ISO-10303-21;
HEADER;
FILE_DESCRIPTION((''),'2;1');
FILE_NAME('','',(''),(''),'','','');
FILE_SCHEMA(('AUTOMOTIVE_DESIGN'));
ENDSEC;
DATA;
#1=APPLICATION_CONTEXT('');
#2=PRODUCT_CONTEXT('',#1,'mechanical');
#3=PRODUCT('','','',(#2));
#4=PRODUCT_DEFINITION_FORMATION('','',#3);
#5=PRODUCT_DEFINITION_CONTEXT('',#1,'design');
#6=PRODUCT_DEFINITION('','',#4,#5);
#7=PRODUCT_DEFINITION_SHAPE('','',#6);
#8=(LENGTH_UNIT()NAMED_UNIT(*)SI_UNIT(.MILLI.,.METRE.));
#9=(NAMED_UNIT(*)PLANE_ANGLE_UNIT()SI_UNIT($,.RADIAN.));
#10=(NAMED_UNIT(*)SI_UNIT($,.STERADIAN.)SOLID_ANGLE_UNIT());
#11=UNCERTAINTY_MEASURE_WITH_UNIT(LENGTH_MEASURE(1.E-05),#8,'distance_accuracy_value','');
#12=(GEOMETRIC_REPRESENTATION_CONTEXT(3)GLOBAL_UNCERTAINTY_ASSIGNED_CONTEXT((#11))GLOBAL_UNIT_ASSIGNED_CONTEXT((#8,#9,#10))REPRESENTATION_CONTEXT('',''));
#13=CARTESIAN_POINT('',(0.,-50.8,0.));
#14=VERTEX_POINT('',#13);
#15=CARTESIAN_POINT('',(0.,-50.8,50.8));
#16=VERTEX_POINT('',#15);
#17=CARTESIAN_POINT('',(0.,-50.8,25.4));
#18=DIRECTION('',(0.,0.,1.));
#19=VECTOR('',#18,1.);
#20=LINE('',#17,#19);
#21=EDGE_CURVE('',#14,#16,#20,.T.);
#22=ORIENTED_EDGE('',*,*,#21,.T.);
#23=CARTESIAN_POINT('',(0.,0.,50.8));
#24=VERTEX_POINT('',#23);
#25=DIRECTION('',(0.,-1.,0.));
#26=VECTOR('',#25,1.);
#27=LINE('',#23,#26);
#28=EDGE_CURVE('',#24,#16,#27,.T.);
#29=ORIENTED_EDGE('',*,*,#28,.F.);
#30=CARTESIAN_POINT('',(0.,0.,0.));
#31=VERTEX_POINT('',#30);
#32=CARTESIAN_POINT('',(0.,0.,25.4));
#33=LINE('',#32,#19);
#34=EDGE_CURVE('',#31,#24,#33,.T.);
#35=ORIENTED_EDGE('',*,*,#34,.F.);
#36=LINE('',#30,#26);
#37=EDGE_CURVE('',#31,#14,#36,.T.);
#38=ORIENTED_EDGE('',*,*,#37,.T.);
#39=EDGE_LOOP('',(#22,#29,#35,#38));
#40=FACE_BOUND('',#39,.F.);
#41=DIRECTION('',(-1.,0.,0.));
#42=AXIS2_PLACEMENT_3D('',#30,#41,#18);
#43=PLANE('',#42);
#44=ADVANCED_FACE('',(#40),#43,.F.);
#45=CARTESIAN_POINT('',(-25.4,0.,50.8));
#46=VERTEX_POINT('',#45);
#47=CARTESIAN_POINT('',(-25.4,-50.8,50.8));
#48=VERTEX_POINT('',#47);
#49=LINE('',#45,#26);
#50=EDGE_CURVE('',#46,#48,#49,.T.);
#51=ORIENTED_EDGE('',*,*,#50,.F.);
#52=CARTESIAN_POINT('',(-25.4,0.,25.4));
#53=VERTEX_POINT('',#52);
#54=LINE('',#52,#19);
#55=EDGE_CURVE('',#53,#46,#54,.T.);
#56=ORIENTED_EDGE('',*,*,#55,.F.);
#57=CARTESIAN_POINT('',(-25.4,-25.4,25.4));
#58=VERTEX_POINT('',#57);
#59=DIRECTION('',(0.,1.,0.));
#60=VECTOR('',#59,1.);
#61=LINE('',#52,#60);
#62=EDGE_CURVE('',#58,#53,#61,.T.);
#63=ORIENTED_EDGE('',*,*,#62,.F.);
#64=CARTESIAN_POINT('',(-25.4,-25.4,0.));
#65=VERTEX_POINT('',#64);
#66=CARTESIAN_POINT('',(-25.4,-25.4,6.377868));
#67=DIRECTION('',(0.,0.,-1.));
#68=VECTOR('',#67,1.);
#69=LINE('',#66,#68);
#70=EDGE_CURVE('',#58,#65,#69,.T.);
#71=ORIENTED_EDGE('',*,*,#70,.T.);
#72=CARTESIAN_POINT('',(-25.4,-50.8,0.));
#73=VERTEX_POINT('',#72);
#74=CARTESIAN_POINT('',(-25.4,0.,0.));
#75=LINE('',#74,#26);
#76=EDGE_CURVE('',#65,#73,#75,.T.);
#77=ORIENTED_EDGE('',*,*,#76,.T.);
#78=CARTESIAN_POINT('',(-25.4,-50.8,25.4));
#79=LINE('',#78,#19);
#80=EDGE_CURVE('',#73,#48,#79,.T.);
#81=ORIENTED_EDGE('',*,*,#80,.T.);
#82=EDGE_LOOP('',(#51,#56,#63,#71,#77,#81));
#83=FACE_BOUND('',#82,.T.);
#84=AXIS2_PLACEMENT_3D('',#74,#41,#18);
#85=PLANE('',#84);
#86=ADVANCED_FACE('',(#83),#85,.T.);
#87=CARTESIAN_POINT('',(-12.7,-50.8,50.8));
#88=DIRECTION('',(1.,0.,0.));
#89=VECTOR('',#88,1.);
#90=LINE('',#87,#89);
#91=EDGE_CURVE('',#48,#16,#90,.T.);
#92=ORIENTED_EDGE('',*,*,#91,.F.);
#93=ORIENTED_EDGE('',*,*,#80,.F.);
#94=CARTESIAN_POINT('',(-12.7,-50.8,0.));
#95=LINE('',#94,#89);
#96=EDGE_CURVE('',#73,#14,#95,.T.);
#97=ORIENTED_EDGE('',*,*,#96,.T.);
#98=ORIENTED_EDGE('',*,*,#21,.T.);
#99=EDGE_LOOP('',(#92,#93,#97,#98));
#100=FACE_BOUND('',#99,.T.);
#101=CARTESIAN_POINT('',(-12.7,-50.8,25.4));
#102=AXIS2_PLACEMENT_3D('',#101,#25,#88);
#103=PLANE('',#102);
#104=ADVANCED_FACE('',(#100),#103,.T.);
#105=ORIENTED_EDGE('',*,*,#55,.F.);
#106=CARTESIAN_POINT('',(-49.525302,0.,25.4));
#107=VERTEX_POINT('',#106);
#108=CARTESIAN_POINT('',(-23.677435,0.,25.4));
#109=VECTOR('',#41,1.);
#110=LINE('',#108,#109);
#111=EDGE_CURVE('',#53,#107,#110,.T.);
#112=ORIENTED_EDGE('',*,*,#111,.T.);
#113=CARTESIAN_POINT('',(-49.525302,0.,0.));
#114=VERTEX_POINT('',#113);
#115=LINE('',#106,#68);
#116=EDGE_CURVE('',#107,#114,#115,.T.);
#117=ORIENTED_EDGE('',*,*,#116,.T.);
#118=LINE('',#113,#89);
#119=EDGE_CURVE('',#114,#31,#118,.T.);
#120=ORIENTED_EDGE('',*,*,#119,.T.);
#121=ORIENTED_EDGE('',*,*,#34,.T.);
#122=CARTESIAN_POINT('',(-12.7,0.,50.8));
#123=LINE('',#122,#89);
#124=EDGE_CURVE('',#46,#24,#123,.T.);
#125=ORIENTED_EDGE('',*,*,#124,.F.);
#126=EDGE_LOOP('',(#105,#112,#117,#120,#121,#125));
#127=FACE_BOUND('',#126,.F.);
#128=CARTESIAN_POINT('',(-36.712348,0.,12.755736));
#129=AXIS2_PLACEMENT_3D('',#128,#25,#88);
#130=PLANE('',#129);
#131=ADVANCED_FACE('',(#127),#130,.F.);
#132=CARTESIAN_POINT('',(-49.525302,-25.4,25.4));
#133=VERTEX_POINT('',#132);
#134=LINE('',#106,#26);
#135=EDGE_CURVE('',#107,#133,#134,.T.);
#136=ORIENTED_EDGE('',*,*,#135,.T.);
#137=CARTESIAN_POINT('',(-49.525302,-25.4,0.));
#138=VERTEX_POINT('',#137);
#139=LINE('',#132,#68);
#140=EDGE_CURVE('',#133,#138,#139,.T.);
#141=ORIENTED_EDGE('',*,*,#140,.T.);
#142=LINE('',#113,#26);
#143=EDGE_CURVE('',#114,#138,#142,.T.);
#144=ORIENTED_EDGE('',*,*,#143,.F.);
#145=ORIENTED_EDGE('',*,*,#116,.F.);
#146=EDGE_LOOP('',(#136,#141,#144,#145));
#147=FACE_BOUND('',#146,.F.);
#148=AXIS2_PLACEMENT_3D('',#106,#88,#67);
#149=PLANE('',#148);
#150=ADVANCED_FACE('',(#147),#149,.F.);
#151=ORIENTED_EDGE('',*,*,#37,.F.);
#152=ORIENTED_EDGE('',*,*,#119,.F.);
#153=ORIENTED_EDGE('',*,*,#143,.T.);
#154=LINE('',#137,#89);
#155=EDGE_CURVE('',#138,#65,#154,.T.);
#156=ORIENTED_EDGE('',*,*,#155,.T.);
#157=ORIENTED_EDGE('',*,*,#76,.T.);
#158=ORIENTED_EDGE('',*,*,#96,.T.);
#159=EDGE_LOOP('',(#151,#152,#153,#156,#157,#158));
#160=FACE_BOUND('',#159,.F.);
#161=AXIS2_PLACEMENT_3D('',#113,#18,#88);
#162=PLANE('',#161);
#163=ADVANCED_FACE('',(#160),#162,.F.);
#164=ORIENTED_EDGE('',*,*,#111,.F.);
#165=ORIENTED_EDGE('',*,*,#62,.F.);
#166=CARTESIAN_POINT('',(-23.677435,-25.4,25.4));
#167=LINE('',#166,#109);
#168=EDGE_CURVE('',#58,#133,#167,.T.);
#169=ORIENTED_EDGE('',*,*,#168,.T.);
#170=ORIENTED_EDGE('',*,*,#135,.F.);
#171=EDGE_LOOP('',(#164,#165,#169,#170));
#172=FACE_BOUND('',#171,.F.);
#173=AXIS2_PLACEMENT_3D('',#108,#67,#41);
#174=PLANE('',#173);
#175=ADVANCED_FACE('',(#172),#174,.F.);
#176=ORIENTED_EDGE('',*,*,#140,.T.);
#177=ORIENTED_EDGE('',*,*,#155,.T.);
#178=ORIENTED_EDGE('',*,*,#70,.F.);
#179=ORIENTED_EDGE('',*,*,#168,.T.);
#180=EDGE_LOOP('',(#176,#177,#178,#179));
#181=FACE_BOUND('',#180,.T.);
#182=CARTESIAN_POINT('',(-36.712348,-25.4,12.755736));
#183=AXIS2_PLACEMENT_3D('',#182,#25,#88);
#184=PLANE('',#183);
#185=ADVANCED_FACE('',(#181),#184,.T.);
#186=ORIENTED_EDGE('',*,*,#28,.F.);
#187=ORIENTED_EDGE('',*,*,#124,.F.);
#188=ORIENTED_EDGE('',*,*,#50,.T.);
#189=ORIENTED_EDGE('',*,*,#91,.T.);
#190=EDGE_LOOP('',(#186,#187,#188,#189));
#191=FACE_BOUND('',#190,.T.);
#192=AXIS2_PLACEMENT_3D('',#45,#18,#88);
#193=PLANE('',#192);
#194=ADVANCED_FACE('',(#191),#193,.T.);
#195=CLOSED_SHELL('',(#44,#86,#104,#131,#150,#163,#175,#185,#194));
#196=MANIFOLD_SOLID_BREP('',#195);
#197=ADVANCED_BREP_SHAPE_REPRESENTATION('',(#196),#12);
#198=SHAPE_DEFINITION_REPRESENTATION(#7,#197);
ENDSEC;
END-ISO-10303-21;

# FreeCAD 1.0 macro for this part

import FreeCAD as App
import Part
import Sketcher
from FreeCAD import Vector
Q = App.Units.Quantity

doc = App.newDocument("Part")
params = doc.addObject("Spreadsheet::Sheet", "Params")
for row, (alias, value) in enumerate([
    ("sketch1_width", "1 in"),
    ("pad1_length", "1 in"),
    ("sketch2_width", "1 in"),
    ("sketch2_height", "2 in"),
    ("pad2_length", "2 in"),
    ("sketch3_width", "1 in"),
    ("pad3_length", "1 in"),
    ("sketch4_width", "1 in"),
    ("sketch4_height", "2 in"),
    ("pad4_length", "2 in"),
], start=1):
    params.set(f"A{row}", alias)
    params.set(f"B{row}", "=" + value)
    params.setAlias(f"B{row}", alias)

body = doc.addObject("PartDesign::Body", "Body")

sketch1 = body.newObject("Sketcher::SketchObject", "Sketch")
sketch1.AttachmentSupport = (doc.getObject("YZ_Plane"), [""])
sketch1.MapMode = "FlatFace"
sketch1.addGeometry([
    Part.LineSegment(Vector(-25, 28, 0), Vector(-25, 3, 0)),
    Part.LineSegment(Vector(-25, 3, 0), Vector(0, 3, 0)),
    Part.LineSegment(Vector(0, 3, 0), Vector(0, 28, 0)),
    Part.LineSegment(Vector(0, 28, 0), Vector(-25, 28, 0)),
], False)
sketch1.addConstraint([
    Sketcher.Constraint("Coincident", 0, 2, 1, 1),
    Sketcher.Constraint("Coincident", 1, 2, 2, 1),
    Sketcher.Constraint("Coincident", 2, 2, 3, 1),
    Sketcher.Constraint("Coincident", 3, 2, 0, 1),
    Sketcher.Constraint("Vertical", 0),
    Sketcher.Constraint("Horizontal", 1),
    Sketcher.Constraint("Vertical", 2),
    Sketcher.Constraint("Horizontal", 3),
    Sketcher.Constraint("PointOnObject", 1, 2, -2),
    Sketcher.Constraint("Equal", 3, 0),
    Sketcher.Constraint("DistanceX", 1, 1, 1, 2, Q("1 in")),
    Sketcher.Constraint("DistanceY", -1, 1, 0, 2, Q("2.762368 mm")),
])
sketch1.setExpression("Constraints[10]", "Params.sketch1_width")
pad1 = body.newObject("PartDesign::Pad", "Pad")
pad1.Profile = sketch1
pad1.setExpression("Length", "Params.pad1_length")
body2 = doc.addObject("PartDesign::Body", "Body001")

sketch2 = body2.newObject("Sketcher::SketchObject", "Sketch001")
sketch2.AttachmentSupport = (doc.getObject("XZ_Plane001"), [""])
sketch2.MapMode = "FlatFace"
sketch2.addGeometry([
    Part.LineSegment(Vector(-32, 53, 0), Vector(-32, 2, 0)),
    Part.LineSegment(Vector(-32, 2, 0), Vector(-6, 2, 0)),
    Part.LineSegment(Vector(-6, 2, 0), Vector(-6, 53, 0)),
    Part.LineSegment(Vector(-6, 53, 0), Vector(-32, 53, 0)),
], False)
sketch2.addConstraint([
    Sketcher.Constraint("Coincident", 0, 2, 1, 1),
    Sketcher.Constraint("Coincident", 1, 2, 2, 1),
    Sketcher.Constraint("Coincident", 2, 2, 3, 1),
    Sketcher.Constraint("Coincident", 3, 2, 0, 1),
    Sketcher.Constraint("Vertical", 0),
    Sketcher.Constraint("Horizontal", 1),
    Sketcher.Constraint("Vertical", 2),
    Sketcher.Constraint("Horizontal", 3),
    Sketcher.Constraint("DistanceX", 1, 1, 1, 2, Q("1 in")),
    Sketcher.Constraint("DistanceY", 0, 2, 0, 1, Q("2 in")),
    Sketcher.Constraint("DistanceX", 0, 2, -1, 1, Q("31.569913 mm")),
    Sketcher.Constraint("DistanceY", -1, 1, 0, 2, Q("2.079605 mm")),
])
sketch2.setExpression("Constraints[8]", "Params.sketch2_width")
sketch2.setExpression("Constraints[9]", "Params.sketch2_height")
pad2 = body2.newObject("PartDesign::Pad", "Pad001")
pad2.Profile = sketch2
pad2.setExpression("Length", "Params.pad2_length")
body3 = doc.addObject("PartDesign::Body", "Body002")

sketch3 = body3.newObject("Sketcher::SketchObject", "Sketch002")
sketch3.AttachmentSupport = (doc.getObject("XZ_Plane002"), [""])
sketch3.MapMode = "FlatFace"
sketch3.addGeometry([
    Part.LineSegment(Vector(-49.525302, 0, 0), Vector(-24.125302, 0, 0)),
    Part.LineSegment(Vector(-24.125302, 0, 0), Vector(-23.677435, 25.4, 0)),
    Part.LineSegment(Vector(-23.677435, 25.4, 0), Vector(-49.525302, 25.4, 0)),
    Part.LineSegment(Vector(-49.525302, 25.4, 0), Vector(-49.525302, 0, 0)),
], False)
sketch3.addConstraint([
    Sketcher.Constraint("Coincident", 0, 2, 1, 1),
    Sketcher.Constraint("Coincident", 1, 2, 2, 1),
    Sketcher.Constraint("Coincident", 2, 2, 3, 1),
    Sketcher.Constraint("Coincident", 3, 2, 0, 1),
    Sketcher.Constraint("Horizontal", 0),
    Sketcher.Constraint("Horizontal", 2),
    Sketcher.Constraint("Vertical", 3),
    Sketcher.Constraint("PointOnObject", 0, 2, -1),
    Sketcher.Constraint("Equal", 0, 3),
    Sketcher.Constraint("DistanceX", 0, 1, 0, 2, Q("1 in")),
    Sketcher.Constraint("DistanceX", 0, 2, -1, 1, Q("24.125302 mm")),
    Sketcher.Constraint("Distance", 1, Q("25.403948 mm")),
])
sketch3.setExpression("Constraints[9]", "Params.sketch3_width")
pad3 = body3.newObject("PartDesign::Pad", "Pad002")
pad3.Profile = sketch3
pad3.setExpression("Length", "Params.pad3_length")

sketch4 = body3.newObject("Sketcher::SketchObject", "Sketch003")
sketch4.AttachmentSupport = (doc.getObject("XZ_Plane002"), [""])
sketch4.MapMode = "FlatFace"
sketch4.addGeometry([
    Part.LineSegment(Vector(-25, 51, 0), Vector(-25, 0, 0)),
    Part.LineSegment(Vector(-25, 0, 0), Vector(0, 0, 0)),
    Part.LineSegment(Vector(0, 0, 0), Vector(0, 51, 0)),
    Part.LineSegment(Vector(0, 51, 0), Vector(-25, 51, 0)),
], False)
sketch4.addConstraint([
    Sketcher.Constraint("Coincident", 0, 2, 1, 1),
    Sketcher.Constraint("Coincident", 1, 2, 2, 1),
    Sketcher.Constraint("Coincident", 2, 2, 3, 1),
    Sketcher.Constraint("Coincident", 3, 2, 0, 1),
    Sketcher.Constraint("Vertical", 0),
    Sketcher.Constraint("Horizontal", 1),
    Sketcher.Constraint("Vertical", 2),
    Sketcher.Constraint("Horizontal", 3),
    Sketcher.Constraint("Coincident", 1, 2, -1, 1),
    Sketcher.Constraint("DistanceX", 1, 1, 1, 2, Q("1 in")),
    Sketcher.Constraint("DistanceY", 0, 2, 0, 1, Q("2 in")),
])
sketch4.setExpression("Constraints[9]", "Params.sketch4_width")
sketch4.setExpression("Constraints[10]", "Params.sketch4_height")
pad4 = body3.newObject("PartDesign::Pad", "Pad003")
pad4.Profile = sketch4
pad4.setExpression("Length", "Params.pad4_length")
body.Visibility = False
body2.Visibility = False

doc.recompute()
